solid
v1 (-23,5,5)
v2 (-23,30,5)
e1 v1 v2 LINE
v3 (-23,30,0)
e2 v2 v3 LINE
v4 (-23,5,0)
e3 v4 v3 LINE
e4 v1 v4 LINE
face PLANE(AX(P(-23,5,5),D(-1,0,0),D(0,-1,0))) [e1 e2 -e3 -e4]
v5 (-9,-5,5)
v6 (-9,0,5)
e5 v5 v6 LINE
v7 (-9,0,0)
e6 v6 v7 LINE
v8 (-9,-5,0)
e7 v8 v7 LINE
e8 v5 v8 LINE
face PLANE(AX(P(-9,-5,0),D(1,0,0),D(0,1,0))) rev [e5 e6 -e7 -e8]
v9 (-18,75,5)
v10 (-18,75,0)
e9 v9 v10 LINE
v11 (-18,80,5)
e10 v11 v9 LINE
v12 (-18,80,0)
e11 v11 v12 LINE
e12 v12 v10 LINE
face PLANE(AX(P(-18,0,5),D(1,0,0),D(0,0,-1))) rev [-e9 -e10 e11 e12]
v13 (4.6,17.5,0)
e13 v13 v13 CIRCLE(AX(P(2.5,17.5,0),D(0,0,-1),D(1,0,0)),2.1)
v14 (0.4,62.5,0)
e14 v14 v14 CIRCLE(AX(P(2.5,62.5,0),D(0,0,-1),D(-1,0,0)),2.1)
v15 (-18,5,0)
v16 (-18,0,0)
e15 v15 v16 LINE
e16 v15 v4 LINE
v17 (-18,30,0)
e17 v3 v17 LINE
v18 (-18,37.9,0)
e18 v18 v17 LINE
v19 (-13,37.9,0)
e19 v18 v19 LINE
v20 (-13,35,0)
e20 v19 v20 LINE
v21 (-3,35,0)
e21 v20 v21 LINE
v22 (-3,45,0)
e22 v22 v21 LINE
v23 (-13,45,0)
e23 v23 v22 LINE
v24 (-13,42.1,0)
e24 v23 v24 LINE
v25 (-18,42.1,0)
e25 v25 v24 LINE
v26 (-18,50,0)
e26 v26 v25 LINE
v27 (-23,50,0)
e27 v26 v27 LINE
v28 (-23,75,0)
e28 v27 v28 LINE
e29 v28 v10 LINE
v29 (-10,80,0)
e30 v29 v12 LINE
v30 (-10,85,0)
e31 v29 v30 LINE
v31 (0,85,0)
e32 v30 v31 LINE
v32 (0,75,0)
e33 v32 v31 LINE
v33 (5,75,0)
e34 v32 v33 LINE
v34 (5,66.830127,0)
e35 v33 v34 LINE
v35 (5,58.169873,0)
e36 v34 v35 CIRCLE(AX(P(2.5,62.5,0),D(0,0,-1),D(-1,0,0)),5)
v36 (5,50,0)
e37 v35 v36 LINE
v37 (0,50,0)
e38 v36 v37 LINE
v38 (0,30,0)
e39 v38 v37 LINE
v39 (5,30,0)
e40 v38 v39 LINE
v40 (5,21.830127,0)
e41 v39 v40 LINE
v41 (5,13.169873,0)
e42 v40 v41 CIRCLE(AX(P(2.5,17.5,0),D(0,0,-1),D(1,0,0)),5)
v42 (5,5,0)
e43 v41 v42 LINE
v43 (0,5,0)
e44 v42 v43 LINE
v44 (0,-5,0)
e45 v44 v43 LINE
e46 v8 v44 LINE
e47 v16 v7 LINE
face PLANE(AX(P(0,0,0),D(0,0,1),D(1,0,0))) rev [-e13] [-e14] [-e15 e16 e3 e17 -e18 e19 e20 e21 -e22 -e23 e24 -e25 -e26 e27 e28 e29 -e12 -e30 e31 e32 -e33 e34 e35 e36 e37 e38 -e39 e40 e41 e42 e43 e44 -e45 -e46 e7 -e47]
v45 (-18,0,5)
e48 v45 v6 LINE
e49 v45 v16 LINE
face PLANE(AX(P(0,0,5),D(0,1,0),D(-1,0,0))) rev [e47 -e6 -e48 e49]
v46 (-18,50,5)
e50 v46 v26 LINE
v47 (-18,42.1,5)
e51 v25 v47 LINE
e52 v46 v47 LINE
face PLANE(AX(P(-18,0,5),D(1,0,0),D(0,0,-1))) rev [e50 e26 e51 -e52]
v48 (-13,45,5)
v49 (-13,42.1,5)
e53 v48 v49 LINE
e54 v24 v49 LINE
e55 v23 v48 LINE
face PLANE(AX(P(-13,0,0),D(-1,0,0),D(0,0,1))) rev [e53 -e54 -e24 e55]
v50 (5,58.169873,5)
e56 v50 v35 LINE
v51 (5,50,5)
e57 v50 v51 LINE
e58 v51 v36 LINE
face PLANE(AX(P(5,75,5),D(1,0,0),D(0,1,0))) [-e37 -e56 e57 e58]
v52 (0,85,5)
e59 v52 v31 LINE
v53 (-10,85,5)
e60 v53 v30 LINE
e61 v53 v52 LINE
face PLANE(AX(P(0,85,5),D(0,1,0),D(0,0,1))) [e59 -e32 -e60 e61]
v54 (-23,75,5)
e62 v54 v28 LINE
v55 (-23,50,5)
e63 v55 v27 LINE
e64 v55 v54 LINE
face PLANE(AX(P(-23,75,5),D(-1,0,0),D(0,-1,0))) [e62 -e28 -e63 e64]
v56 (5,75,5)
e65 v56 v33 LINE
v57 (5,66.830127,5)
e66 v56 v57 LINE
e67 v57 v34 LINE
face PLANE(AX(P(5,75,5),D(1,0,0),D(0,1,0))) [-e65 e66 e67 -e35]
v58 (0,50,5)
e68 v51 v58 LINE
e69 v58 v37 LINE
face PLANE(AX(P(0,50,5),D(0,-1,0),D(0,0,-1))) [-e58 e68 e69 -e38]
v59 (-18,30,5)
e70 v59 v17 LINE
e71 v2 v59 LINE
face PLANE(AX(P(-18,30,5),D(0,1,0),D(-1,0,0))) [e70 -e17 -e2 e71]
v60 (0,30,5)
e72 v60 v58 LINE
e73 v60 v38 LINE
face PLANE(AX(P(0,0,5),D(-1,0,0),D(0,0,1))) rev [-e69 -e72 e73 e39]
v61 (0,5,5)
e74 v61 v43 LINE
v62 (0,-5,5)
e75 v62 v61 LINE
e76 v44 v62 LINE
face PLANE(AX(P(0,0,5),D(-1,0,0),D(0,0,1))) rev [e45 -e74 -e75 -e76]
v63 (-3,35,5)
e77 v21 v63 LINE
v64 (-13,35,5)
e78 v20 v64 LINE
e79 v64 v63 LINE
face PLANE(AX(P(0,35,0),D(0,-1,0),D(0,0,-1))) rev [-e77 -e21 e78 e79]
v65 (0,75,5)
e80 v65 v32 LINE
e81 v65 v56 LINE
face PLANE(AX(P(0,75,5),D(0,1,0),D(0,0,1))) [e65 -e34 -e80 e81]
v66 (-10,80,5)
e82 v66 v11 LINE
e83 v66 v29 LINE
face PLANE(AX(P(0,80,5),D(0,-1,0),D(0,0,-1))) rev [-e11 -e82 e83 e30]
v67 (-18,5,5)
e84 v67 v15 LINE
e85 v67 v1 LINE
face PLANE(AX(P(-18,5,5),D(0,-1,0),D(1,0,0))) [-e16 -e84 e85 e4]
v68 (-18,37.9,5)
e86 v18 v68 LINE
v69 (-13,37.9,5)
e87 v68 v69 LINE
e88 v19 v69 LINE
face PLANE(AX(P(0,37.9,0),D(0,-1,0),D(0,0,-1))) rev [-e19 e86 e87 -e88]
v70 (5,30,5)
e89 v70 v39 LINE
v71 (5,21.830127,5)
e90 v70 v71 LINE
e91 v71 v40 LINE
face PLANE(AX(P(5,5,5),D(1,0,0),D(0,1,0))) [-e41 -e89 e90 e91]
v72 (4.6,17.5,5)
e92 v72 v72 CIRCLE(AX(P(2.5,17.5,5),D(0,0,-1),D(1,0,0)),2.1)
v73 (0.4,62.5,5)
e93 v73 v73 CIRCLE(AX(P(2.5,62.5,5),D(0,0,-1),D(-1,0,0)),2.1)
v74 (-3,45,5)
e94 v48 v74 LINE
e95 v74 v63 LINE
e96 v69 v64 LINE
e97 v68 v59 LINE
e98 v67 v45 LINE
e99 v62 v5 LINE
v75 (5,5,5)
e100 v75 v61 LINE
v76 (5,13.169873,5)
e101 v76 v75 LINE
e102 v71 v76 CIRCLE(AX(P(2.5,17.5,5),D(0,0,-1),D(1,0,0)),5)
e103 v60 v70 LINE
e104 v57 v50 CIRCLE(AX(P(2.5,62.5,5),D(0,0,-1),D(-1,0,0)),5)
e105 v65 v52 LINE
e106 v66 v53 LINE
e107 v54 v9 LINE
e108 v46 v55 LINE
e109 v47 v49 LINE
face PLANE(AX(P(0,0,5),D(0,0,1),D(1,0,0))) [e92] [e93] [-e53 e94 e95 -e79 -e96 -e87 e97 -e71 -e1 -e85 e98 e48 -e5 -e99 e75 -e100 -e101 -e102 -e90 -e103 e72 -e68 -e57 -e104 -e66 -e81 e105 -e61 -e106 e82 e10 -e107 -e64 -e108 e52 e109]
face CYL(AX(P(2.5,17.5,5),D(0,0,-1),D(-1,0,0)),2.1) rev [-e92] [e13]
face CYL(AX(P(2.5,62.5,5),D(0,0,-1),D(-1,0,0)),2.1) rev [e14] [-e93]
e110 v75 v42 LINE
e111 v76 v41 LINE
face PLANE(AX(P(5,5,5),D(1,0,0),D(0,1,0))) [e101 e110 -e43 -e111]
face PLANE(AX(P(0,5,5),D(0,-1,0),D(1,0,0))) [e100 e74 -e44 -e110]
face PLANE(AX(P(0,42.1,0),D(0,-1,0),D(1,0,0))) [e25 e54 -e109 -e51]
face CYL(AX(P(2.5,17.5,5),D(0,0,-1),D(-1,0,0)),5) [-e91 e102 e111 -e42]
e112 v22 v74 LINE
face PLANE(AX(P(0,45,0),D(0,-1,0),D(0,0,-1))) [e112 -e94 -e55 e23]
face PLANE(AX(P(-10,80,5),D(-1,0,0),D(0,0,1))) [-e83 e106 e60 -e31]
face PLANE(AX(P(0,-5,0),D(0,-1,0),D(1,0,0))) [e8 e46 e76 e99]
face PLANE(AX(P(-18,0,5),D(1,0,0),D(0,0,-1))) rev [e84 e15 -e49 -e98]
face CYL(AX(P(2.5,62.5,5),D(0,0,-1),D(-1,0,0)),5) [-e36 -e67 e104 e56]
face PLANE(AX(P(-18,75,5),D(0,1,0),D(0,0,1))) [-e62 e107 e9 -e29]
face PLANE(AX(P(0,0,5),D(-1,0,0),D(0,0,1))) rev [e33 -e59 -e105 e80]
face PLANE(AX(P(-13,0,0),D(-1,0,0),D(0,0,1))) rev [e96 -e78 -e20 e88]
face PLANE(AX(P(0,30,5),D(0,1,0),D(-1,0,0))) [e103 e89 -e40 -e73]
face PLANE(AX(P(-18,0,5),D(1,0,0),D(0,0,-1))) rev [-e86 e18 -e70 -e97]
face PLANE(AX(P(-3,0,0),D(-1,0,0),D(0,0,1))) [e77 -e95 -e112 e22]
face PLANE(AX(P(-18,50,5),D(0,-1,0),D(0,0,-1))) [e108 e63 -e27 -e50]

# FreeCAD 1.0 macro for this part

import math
import FreeCAD as App
import Part
import Sketcher
Q = App.Units.Quantity

doc = App.newDocument("Part")
params = doc.addObject("Spreadsheet::Sheet", "Params")
for row, (alias, value) in enumerate([
    ("sketch1_width", "18 mm"),
    ("sketch1_height", "80 mm"),
    ("pad1_length", "5 mm"),
    ("sketch2_width", "5 mm"),
    ("sketch2_height", "25 mm"),
    ("pad2_length", "5 mm"),
    ("sketch3_width", "9 mm"),
    ("sketch3_height", "5 mm"),
    ("pad3_length", "5 mm"),
    ("sketch4_width", "10 mm"),
    ("sketch4_height", "5 mm"),
    ("pad4_length", "5 mm"),
    ("sketch5_diameter", "4.2 mm"),
    ("pocket1_length", "5 mm"),
    ("sketch6_radius", "5 mm"),
    ("pad5_length", "5 mm"),
    ("sketch7_width", "5 mm"),
    ("sketch7_width2", "10 mm"),
    ("sketch7_height", "2.9 mm"),
    ("pocket2_length", "5 mm"),
], start=1):
    params.set(f"A{row}", alias)
    params.set(f"B{row}", "=" + value)
    params.setAlias(f"B{row}", alias)

body = doc.addObject("PartDesign::Body", "Body")

# Sketch on XY plane
sketch1 = body.newObject("Sketcher::SketchObject", "Sketch")
sketch1.AttachmentSupport = (doc.getObject("XY_Plane"), [""])
sketch1.MapMode = "FlatFace"
sketch1.addGeometry(Part.LineSegment(App.Vector(-18, 80, 0), App.Vector(-18, 0, 0)), False)
sketch1.addGeometry(Part.LineSegment(App.Vector(-18, 0, 0), App.Vector(0, 0, 0)), False)
sketch1.addGeometry(Part.LineSegment(App.Vector(0, 0, 0), App.Vector(0, 80, 0)), False)
sketch1.addGeometry(Part.LineSegment(App.Vector(0, 80, 0), App.Vector(-18, 80, 0)), False)
sketch1.addConstraint(Sketcher.Constraint("Coincident", 0, 2, 1, 1))
sketch1.addConstraint(Sketcher.Constraint("Coincident", 1, 2, 2, 1))
sketch1.addConstraint(Sketcher.Constraint("Coincident", 2, 2, 3, 1))
sketch1.addConstraint(Sketcher.Constraint("Coincident", 3, 2, 0, 1))
sketch1.addConstraint(Sketcher.Constraint("Vertical", 0))
sketch1.addConstraint(Sketcher.Constraint("Horizontal", 1))
sketch1.addConstraint(Sketcher.Constraint("Vertical", 2))
sketch1.addConstraint(Sketcher.Constraint("Horizontal", 3))
sketch1.addConstraint(Sketcher.Constraint("Coincident", 1, 2, -1, 1))
sketch1.addConstraint(Sketcher.Constraint("DistanceX", 1, 1, 1, 2, Q("18 mm")))
sketch1.addConstraint(Sketcher.Constraint("DistanceY", 0, 2, 0, 1, Q("80 mm")))
sketch1.setExpression("Constraints[9]", "Params.sketch1_width")
sketch1.setExpression("Constraints[10]", "Params.sketch1_height")
pad1 = body.newObject("PartDesign::Pad", "Pad")
pad1.Profile = sketch1
pad1.setExpression("Length", "Params.pad1_length")

# Sketch on XY plane
sketch2 = body.newObject("Sketcher::SketchObject", "Sketch001")
sketch2.AttachmentSupport = (doc.getObject("XY_Plane"), [""])
sketch2.MapMode = "FlatFace"
sketch2.addGeometry(Part.LineSegment(App.Vector(5, 75, 0), App.Vector(5, 50, 0)), False)
sketch2.addGeometry(Part.LineSegment(App.Vector(5, 50, 0), App.Vector(0, 50, 0)), False)
sketch2.addGeometry(Part.LineSegment(App.Vector(0, 50, 0), App.Vector(0, 75, 0)), False)
sketch2.addGeometry(Part.LineSegment(App.Vector(0, 75, 0), App.Vector(5, 75, 0)), False)
sketch2.addGeometry(Part.LineSegment(App.Vector(5, 30, 0), App.Vector(5, 5, 0)), False)
sketch2.addGeometry(Part.LineSegment(App.Vector(5, 5, 0), App.Vector(0, 5, 0)), False)
sketch2.addGeometry(Part.LineSegment(App.Vector(0, 5, 0), App.Vector(0, 30, 0)), False)
sketch2.addGeometry(Part.LineSegment(App.Vector(0, 30, 0), App.Vector(5, 30, 0)), False)
sketch2.addGeometry(Part.LineSegment(App.Vector(-18, 30, 0), App.Vector(-18, 5, 0)), False)
sketch2.addGeometry(Part.LineSegment(App.Vector(-18, 5, 0), App.Vector(-23, 5, 0)), False)
sketch2.addGeometry(Part.LineSegment(App.Vector(-23, 5, 0), App.Vector(-23, 30, 0)), False)
sketch2.addGeometry(Part.LineSegment(App.Vector(-23, 30, 0), App.Vector(-18, 30, 0)), False)
sketch2.addGeometry(Part.LineSegment(App.Vector(-18, 75, 0), App.Vector(-18, 50, 0)), False)
sketch2.addGeometry(Part.LineSegment(App.Vector(-18, 50, 0), App.Vector(-23, 50, 0)), False)
sketch2.addGeometry(Part.LineSegment(App.Vector(-23, 50, 0), App.Vector(-23, 75, 0)), False)
sketch2.addGeometry(Part.LineSegment(App.Vector(-23, 75, 0), App.Vector(-18, 75, 0)), False)
sketch2.addConstraint(Sketcher.Constraint("Coincident", 0, 2, 1, 1))
sketch2.addConstraint(Sketcher.Constraint("Coincident", 1, 2, 2, 1))
sketch2.addConstraint(Sketcher.Constraint("Coincident", 2, 2, 3, 1))
sketch2.addConstraint(Sketcher.Constraint("Coincident", 3, 2, 0, 1))
sketch2.addConstraint(Sketcher.Constraint("Coincident", 4, 2, 5, 1))
sketch2.addConstraint(Sketcher.Constraint("Coincident", 5, 2, 6, 1))
sketch2.addConstraint(Sketcher.Constraint("Coincident", 6, 2, 7, 1))
sketch2.addConstraint(Sketcher.Constraint("Coincident", 7, 2, 4, 1))
sketch2.addConstraint(Sketcher.Constraint("Coincident", 8, 2, 9, 1))
sketch2.addConstraint(Sketcher.Constraint("Coincident", 9, 2, 10, 1))
sketch2.addConstraint(Sketcher.Constraint("Coincident", 10, 2, 11, 1))
sketch2.addConstraint(Sketcher.Constraint("Coincident", 11, 2, 8, 1))
sketch2.addConstraint(Sketcher.Constraint("Coincident", 12, 2, 13, 1))
sketch2.addConstraint(Sketcher.Constraint("Coincident", 13, 2, 14, 1))
sketch2.addConstraint(Sketcher.Constraint("Coincident", 14, 2, 15, 1))
sketch2.addConstraint(Sketcher.Constraint("Coincident", 15, 2, 12, 1))
sketch2.addConstraint(Sketcher.Constraint("Vertical", 0))
sketch2.addConstraint(Sketcher.Constraint("Horizontal", 1))
sketch2.addConstraint(Sketcher.Constraint("Vertical", 2))
sketch2.addConstraint(Sketcher.Constraint("Horizontal", 3))
sketch2.addConstraint(Sketcher.Constraint("Vertical", 4))
sketch2.addConstraint(Sketcher.Constraint("Horizontal", 5))
sketch2.addConstraint(Sketcher.Constraint("Vertical", 6))
sketch2.addConstraint(Sketcher.Constraint("Horizontal", 7))
sketch2.addConstraint(Sketcher.Constraint("Vertical", 8))
sketch2.addConstraint(Sketcher.Constraint("Horizontal", 9))
sketch2.addConstraint(Sketcher.Constraint("Vertical", 10))
sketch2.addConstraint(Sketcher.Constraint("Horizontal", 11))
sketch2.addConstraint(Sketcher.Constraint("Vertical", 12))
sketch2.addConstraint(Sketcher.Constraint("Horizontal", 13))
sketch2.addConstraint(Sketcher.Constraint("Vertical", 14))
sketch2.addConstraint(Sketcher.Constraint("Horizontal", 15))
sketch2.addConstraint(Sketcher.Constraint("PointOnObject", 1, 2, -2))
sketch2.addConstraint(Sketcher.Constraint("PointOnObject", 5, 2, -2))
sketch2.addConstraint(Sketcher.Constraint("Horizontal", 5, 2, 8, 2))
sketch2.addConstraint(Sketcher.Constraint("Horizontal", 7, 2, 10, 2))
sketch2.addConstraint(Sketcher.Constraint("Horizontal", 1, 2, 12, 2))
sketch2.addConstraint(Sketcher.Constraint("Horizontal", 3, 2, 14, 2))
sketch2.addConstraint(Sketcher.Constraint("Vertical", 3, 2, 4, 2))
sketch2.addConstraint(Sketcher.Constraint("Vertical", 11, 2, 12, 2))
sketch2.addConstraint(Sketcher.Constraint("Vertical", 10, 2, 13, 2))
sketch2.addConstraint(Sketcher.Constraint("Equal", 7, 9))
sketch2.addConstraint(Sketcher.Constraint("Equal", 2, 4))
sketch2.addConstraint(Sketcher.Constraint("DistanceX", 1, 2, 1, 1, Q("5 mm")))
sketch2.addConstraint(Sketcher.Constraint("DistanceY", 0, 2, 0, 1, Q("25 mm")))
sketch2.addConstraint(Sketcher.Constraint("DistanceY", -1, 1, 0, 2, Q("50 mm")))
sketch2.addConstraint(Sketcher.Constraint("DistanceY", -1, 1, 4, 2, Q("5 mm")))
sketch2.addConstraint(Sketcher.Constraint("DistanceX", 8, 2, -1, 1, Q("18 mm")))
sketch2.setExpression("Constraints[43]", "Params.sketch2_width")
sketch2.setExpression("Constraints[44]", "Params.sketch2_height")
pad2 = body.newObject("PartDesign::Pad", "Pad001")
pad2.Profile = sketch2
pad2.setExpression("Length", "Params.pad2_length")

# Sketch on XZ plane
sketch3 = body.newObject("Sketcher::SketchObject", "Sketch002")
sketch3.AttachmentSupport = (doc.getObject("XZ_Plane"), [""])
sketch3.MapMode = "FlatFace"
sketch3.addGeometry(Part.LineSegment(App.Vector(-9, 5, 0), App.Vector(-9, 0, 0)), False)
sketch3.addGeometry(Part.LineSegment(App.Vector(-9, 0, 0), App.Vector(0, 0, 0)), False)
sketch3.addGeometry(Part.LineSegment(App.Vector(0, 0, 0), App.Vector(0, 5, 0)), False)
sketch3.addGeometry(Part.LineSegment(App.Vector(0, 5, 0), App.Vector(-9, 5, 0)), False)
sketch3.addConstraint(Sketcher.Constraint("Coincident", 0, 2, 1, 1))
sketch3.addConstraint(Sketcher.Constraint("Coincident", 1, 2, 2, 1))
sketch3.addConstraint(Sketcher.Constraint("Coincident", 2, 2, 3, 1))
sketch3.addConstraint(Sketcher.Constraint("Coincident", 3, 2, 0, 1))
sketch3.addConstraint(Sketcher.Constraint("Vertical", 0))
sketch3.addConstraint(Sketcher.Constraint("Horizontal", 1))
sketch3.addConstraint(Sketcher.Constraint("Vertical", 2))
sketch3.addConstraint(Sketcher.Constraint("Horizontal", 3))
sketch3.addConstraint(Sketcher.Constraint("Coincident", 1, 2, -1, 1))
sketch3.addConstraint(Sketcher.Constraint("DistanceX", 1, 1, 1, 2, Q("9 mm")))
sketch3.addConstraint(Sketcher.Constraint("DistanceY", 0, 2, 0, 1, Q("5 mm")))
sketch3.setExpression("Constraints[9]", "Params.sketch3_width")
sketch3.setExpression("Constraints[10]", "Params.sketch3_height")
pad3 = body.newObject("PartDesign::Pad", "Pad002")
pad3.Profile = sketch3
pad3.setExpression("Length", "Params.pad3_length")

# Sketch on XY plane
sketch4 = body.newObject("Sketcher::SketchObject", "Sketch003")
sketch4.AttachmentSupport = (doc.getObject("XY_Plane"), [""])
sketch4.MapMode = "FlatFace"
sketch4.addGeometry(Part.LineSegment(App.Vector(0, 85, 0), App.Vector(0, 80, 0)), False)
sketch4.addGeometry(Part.LineSegment(App.Vector(0, 80, 0), App.Vector(-10, 80, 0)), False)
sketch4.addGeometry(Part.LineSegment(App.Vector(-10, 80, 0), App.Vector(-10, 85, 0)), False)
sketch4.addGeometry(Part.LineSegment(App.Vector(-10, 85, 0), App.Vector(0, 85, 0)), False)
sketch4.addConstraint(Sketcher.Constraint("Coincident", 0, 2, 1, 1))
sketch4.addConstraint(Sketcher.Constraint("Coincident", 1, 2, 2, 1))
sketch4.addConstraint(Sketcher.Constraint("Coincident", 2, 2, 3, 1))
sketch4.addConstraint(Sketcher.Constraint("Coincident", 3, 2, 0, 1))
sketch4.addConstraint(Sketcher.Constraint("Vertical", 0))
sketch4.addConstraint(Sketcher.Constraint("Horizontal", 1))
sketch4.addConstraint(Sketcher.Constraint("Vertical", 2))
sketch4.addConstraint(Sketcher.Constraint("Horizontal", 3))
sketch4.addConstraint(Sketcher.Constraint("PointOnObject", 0, 2, -2))
sketch4.addConstraint(Sketcher.Constraint("DistanceX", 1, 2, 1, 1, Q("10 mm")))
sketch4.addConstraint(Sketcher.Constraint("DistanceY", 0, 2, 0, 1, Q("5 mm")))
sketch4.addConstraint(Sketcher.Constraint("DistanceY", -1, 1, 0, 2, Q("80 mm")))
sketch4.setExpression("Constraints[9]", "Params.sketch4_width")
sketch4.setExpression("Constraints[10]", "Params.sketch4_height")
pad4 = body.newObject("PartDesign::Pad", "Pad003")
pad4.Profile = sketch4
pad4.setExpression("Length", "Params.pad4_length")

# Sketch on XY plane
sketch5 = body.newObject("Sketcher::SketchObject", "Sketch004")
sketch5.AttachmentSupport = (doc.getObject("XY_Plane"), [""])
sketch5.MapMode = "FlatFace"
sketch5.addGeometry(Part.Circle(App.Vector(2.5, 62.5, 0), App.Vector(0, 0, 1), 2.1), False)
sketch5.addGeometry(Part.Circle(App.Vector(2.5, 17.5, 0), App.Vector(0, 0, 1), 2.1), False)
sketch5.addConstraint(Sketcher.Constraint("Equal", 0, 1))
sketch5.addConstraint(Sketcher.Constraint("Vertical", 0, 3, 1, 3))
sketch5.addConstraint(Sketcher.Constraint("Diameter", 0, Q("4.2 mm")))
sketch5.addConstraint(Sketcher.Constraint("DistanceY", 1, 3, 0, 3, Q("45 mm")))
sketch5.addConstraint(Sketcher.Constraint("DistanceX", -1, 1, 0, 3, Q("2.5 mm")))
sketch5.addConstraint(Sketcher.Constraint("DistanceY", -1, 1, 0, 3, Q("62.5 mm")))
sketch5.setExpression("Constraints[2]", "Params.sketch5_diameter")
pocket1 = body.newObject("PartDesign::Pocket", "Pocket")
pocket1.Profile = sketch5
pocket1.setExpression("Length", "Params.pocket1_length")
pocket1.Reversed = True

# Sketch on XY plane
sketch6 = body.newObject("Sketcher::SketchObject", "Sketch005")
sketch6.AttachmentSupport = (doc.getObject("XY_Plane"), [""])
sketch6.MapMode = "FlatFace"
sketch6.addGeometry(Part.LineSegment(App.Vector(5, 58, 0), App.Vector(5, 67, 0)), False)
sketch6.addGeometry(Part.ArcOfCircle(Part.Circle(App.Vector(2, 62, 0), App.Vector(0, 0, 1), 5), math.radians(-60), math.radians(60)), False)
sketch6.addGeometry(Part.LineSegment(App.Vector(5, 13, 0), App.Vector(5, 22, 0)), False)
sketch6.addGeometry(Part.ArcOfCircle(Part.Circle(App.Vector(2, 18, 0), App.Vector(0, 0, 1), 5), math.radians(-60), math.radians(60)), False)
sketch6.addConstraint(Sketcher.Constraint("Coincident", 0, 1, 1, 1))
sketch6.addConstraint(Sketcher.Constraint("Coincident", 1, 2, 0, 2))
sketch6.addConstraint(Sketcher.Constraint("Coincident", 2, 1, 3, 1))
sketch6.addConstraint(Sketcher.Constraint("Coincident", 3, 2, 2, 2))
sketch6.addConstraint(Sketcher.Constraint("Vertical", 0))
sketch6.addConstraint(Sketcher.Constraint("Vertical", 2))
sketch6.addConstraint(Sketcher.Constraint("Equal", 1, 3))
sketch6.addConstraint(Sketcher.Constraint("Vertical", 1, 3, 3, 3))
sketch6.addConstraint(Sketcher.Constraint("Vertical", 1, 2, 2, 1))
sketch6.addConstraint(Sketcher.Constraint("Radius", 1, Q("5 mm")))
sketch6.addConstraint(Sketcher.Constraint("DistanceX", -1, 1, 0, 1, Q("5 mm")))
sketch6.addConstraint(Sketcher.Constraint("DistanceY", 3, 3, 1, 3, Q("45 mm")))
sketch6.addConstraint(Sketcher.Constraint("DistanceX", -1, 1, 1, 3, Q("2.5 mm")))
sketch6.addConstraint(Sketcher.Constraint("DistanceY", -1, 1, 1, 3, Q("62.5 mm")))
sketch6.setExpression("Constraints[9]", "Params.sketch6_radius")
pad5 = body.newObject("PartDesign::Pad", "Pad004")
pad5.Profile = sketch6
pad5.setExpression("Length", "Params.pad5_length")

# Sketch on XY plane
sketch7 = body.newObject("Sketcher::SketchObject", "Sketch006")
sketch7.AttachmentSupport = (doc.getObject("XY_Plane"), [""])
sketch7.MapMode = "FlatFace"
sketch7.AttachmentOffset = App.Placement(App.Vector(0, 0, 5), App.Rotation())
sketch7.addGeometry(Part.LineSegment(App.Vector(-13, 45, 0), App.Vector(-13, 42.1, 0)), False)
sketch7.addGeometry(Part.LineSegment(App.Vector(-13, 42.1, 0), App.Vector(-18, 42.1, 0)), False)
sketch7.addGeometry(Part.LineSegment(App.Vector(-18, 42.1, 0), App.Vector(-18, 37.9, 0)), False)
sketch7.addGeometry(Part.LineSegment(App.Vector(-18, 37.9, 0), App.Vector(-13, 37.9, 0)), False)
sketch7.addGeometry(Part.LineSegment(App.Vector(-13, 37.9, 0), App.Vector(-13, 35, 0)), False)
sketch7.addGeometry(Part.LineSegment(App.Vector(-13, 35, 0), App.Vector(-3, 35, 0)), False)
sketch7.addGeometry(Part.LineSegment(App.Vector(-3, 35, 0), App.Vector(-3, 45, 0)), False)
sketch7.addGeometry(Part.LineSegment(App.Vector(-3, 45, 0), App.Vector(-13, 45, 0)), False)
sketch7.addConstraint(Sketcher.Constraint("Coincident", 0, 2, 1, 1))
sketch7.addConstraint(Sketcher.Constraint("Coincident", 1, 2, 2, 1))
sketch7.addConstraint(Sketcher.Constraint("Coincident", 2, 2, 3, 1))
sketch7.addConstraint(Sketcher.Constraint("Coincident", 3, 2, 4, 1))
sketch7.addConstraint(Sketcher.Constraint("Coincident", 4, 2, 5, 1))
sketch7.addConstraint(Sketcher.Constraint("Coincident", 5, 2, 6, 1))
sketch7.addConstraint(Sketcher.Constraint("Coincident", 6, 2, 7, 1))
sketch7.addConstraint(Sketcher.Constraint("Coincident", 7, 2, 0, 1))
sketch7.addConstraint(Sketcher.Constraint("Vertical", 0))
sketch7.addConstraint(Sketcher.Constraint("Horizontal", 1))
sketch7.addConstraint(Sketcher.Constraint("Vertical", 2))
sketch7.addConstraint(Sketcher.Constraint("Horizontal", 3))
sketch7.addConstraint(Sketcher.Constraint("Vertical", 4))
sketch7.addConstraint(Sketcher.Constraint("Horizontal", 5))
sketch7.addConstraint(Sketcher.Constraint("Vertical", 6))
sketch7.addConstraint(Sketcher.Constraint("Horizontal", 7))
sketch7.addConstraint(Sketcher.Constraint("Vertical", 0, 2, 3, 2))
sketch7.addConstraint(Sketcher.Constraint("Equal", 0, 4))
sketch7.addConstraint(Sketcher.Constraint("Equal", 7, 6))
sketch7.addConstraint(Sketcher.Constraint("DistanceX", 1, 2, 1, 1, Q("5 mm")))
sketch7.addConstraint(Sketcher.Constraint("DistanceX", 5, 1, 5, 2, Q("10 mm")))
sketch7.addConstraint(Sketcher.Constraint("DistanceY", 0, 2, 0, 1, Q("2.9 mm")))
sketch7.addConstraint(Sketcher.Constraint("DistanceX", 0, 2, -1, 1, Q("13 mm")))
sketch7.addConstraint(Sketcher.Constraint("DistanceY", -1, 1, 4, 2, Q("35 mm")))
sketch7.setExpression("Constraints[19]", "Params.sketch7_width")
sketch7.setExpression("Constraints[20]", "Params.sketch7_width2")
sketch7.setExpression("Constraints[21]", "Params.sketch7_height")
pocket2 = body.newObject("PartDesign::Pocket", "Pocket001")
pocket2.Profile = sketch7
pocket2.setExpression("Length", "Params.pocket2_length")

doc.recompute()
